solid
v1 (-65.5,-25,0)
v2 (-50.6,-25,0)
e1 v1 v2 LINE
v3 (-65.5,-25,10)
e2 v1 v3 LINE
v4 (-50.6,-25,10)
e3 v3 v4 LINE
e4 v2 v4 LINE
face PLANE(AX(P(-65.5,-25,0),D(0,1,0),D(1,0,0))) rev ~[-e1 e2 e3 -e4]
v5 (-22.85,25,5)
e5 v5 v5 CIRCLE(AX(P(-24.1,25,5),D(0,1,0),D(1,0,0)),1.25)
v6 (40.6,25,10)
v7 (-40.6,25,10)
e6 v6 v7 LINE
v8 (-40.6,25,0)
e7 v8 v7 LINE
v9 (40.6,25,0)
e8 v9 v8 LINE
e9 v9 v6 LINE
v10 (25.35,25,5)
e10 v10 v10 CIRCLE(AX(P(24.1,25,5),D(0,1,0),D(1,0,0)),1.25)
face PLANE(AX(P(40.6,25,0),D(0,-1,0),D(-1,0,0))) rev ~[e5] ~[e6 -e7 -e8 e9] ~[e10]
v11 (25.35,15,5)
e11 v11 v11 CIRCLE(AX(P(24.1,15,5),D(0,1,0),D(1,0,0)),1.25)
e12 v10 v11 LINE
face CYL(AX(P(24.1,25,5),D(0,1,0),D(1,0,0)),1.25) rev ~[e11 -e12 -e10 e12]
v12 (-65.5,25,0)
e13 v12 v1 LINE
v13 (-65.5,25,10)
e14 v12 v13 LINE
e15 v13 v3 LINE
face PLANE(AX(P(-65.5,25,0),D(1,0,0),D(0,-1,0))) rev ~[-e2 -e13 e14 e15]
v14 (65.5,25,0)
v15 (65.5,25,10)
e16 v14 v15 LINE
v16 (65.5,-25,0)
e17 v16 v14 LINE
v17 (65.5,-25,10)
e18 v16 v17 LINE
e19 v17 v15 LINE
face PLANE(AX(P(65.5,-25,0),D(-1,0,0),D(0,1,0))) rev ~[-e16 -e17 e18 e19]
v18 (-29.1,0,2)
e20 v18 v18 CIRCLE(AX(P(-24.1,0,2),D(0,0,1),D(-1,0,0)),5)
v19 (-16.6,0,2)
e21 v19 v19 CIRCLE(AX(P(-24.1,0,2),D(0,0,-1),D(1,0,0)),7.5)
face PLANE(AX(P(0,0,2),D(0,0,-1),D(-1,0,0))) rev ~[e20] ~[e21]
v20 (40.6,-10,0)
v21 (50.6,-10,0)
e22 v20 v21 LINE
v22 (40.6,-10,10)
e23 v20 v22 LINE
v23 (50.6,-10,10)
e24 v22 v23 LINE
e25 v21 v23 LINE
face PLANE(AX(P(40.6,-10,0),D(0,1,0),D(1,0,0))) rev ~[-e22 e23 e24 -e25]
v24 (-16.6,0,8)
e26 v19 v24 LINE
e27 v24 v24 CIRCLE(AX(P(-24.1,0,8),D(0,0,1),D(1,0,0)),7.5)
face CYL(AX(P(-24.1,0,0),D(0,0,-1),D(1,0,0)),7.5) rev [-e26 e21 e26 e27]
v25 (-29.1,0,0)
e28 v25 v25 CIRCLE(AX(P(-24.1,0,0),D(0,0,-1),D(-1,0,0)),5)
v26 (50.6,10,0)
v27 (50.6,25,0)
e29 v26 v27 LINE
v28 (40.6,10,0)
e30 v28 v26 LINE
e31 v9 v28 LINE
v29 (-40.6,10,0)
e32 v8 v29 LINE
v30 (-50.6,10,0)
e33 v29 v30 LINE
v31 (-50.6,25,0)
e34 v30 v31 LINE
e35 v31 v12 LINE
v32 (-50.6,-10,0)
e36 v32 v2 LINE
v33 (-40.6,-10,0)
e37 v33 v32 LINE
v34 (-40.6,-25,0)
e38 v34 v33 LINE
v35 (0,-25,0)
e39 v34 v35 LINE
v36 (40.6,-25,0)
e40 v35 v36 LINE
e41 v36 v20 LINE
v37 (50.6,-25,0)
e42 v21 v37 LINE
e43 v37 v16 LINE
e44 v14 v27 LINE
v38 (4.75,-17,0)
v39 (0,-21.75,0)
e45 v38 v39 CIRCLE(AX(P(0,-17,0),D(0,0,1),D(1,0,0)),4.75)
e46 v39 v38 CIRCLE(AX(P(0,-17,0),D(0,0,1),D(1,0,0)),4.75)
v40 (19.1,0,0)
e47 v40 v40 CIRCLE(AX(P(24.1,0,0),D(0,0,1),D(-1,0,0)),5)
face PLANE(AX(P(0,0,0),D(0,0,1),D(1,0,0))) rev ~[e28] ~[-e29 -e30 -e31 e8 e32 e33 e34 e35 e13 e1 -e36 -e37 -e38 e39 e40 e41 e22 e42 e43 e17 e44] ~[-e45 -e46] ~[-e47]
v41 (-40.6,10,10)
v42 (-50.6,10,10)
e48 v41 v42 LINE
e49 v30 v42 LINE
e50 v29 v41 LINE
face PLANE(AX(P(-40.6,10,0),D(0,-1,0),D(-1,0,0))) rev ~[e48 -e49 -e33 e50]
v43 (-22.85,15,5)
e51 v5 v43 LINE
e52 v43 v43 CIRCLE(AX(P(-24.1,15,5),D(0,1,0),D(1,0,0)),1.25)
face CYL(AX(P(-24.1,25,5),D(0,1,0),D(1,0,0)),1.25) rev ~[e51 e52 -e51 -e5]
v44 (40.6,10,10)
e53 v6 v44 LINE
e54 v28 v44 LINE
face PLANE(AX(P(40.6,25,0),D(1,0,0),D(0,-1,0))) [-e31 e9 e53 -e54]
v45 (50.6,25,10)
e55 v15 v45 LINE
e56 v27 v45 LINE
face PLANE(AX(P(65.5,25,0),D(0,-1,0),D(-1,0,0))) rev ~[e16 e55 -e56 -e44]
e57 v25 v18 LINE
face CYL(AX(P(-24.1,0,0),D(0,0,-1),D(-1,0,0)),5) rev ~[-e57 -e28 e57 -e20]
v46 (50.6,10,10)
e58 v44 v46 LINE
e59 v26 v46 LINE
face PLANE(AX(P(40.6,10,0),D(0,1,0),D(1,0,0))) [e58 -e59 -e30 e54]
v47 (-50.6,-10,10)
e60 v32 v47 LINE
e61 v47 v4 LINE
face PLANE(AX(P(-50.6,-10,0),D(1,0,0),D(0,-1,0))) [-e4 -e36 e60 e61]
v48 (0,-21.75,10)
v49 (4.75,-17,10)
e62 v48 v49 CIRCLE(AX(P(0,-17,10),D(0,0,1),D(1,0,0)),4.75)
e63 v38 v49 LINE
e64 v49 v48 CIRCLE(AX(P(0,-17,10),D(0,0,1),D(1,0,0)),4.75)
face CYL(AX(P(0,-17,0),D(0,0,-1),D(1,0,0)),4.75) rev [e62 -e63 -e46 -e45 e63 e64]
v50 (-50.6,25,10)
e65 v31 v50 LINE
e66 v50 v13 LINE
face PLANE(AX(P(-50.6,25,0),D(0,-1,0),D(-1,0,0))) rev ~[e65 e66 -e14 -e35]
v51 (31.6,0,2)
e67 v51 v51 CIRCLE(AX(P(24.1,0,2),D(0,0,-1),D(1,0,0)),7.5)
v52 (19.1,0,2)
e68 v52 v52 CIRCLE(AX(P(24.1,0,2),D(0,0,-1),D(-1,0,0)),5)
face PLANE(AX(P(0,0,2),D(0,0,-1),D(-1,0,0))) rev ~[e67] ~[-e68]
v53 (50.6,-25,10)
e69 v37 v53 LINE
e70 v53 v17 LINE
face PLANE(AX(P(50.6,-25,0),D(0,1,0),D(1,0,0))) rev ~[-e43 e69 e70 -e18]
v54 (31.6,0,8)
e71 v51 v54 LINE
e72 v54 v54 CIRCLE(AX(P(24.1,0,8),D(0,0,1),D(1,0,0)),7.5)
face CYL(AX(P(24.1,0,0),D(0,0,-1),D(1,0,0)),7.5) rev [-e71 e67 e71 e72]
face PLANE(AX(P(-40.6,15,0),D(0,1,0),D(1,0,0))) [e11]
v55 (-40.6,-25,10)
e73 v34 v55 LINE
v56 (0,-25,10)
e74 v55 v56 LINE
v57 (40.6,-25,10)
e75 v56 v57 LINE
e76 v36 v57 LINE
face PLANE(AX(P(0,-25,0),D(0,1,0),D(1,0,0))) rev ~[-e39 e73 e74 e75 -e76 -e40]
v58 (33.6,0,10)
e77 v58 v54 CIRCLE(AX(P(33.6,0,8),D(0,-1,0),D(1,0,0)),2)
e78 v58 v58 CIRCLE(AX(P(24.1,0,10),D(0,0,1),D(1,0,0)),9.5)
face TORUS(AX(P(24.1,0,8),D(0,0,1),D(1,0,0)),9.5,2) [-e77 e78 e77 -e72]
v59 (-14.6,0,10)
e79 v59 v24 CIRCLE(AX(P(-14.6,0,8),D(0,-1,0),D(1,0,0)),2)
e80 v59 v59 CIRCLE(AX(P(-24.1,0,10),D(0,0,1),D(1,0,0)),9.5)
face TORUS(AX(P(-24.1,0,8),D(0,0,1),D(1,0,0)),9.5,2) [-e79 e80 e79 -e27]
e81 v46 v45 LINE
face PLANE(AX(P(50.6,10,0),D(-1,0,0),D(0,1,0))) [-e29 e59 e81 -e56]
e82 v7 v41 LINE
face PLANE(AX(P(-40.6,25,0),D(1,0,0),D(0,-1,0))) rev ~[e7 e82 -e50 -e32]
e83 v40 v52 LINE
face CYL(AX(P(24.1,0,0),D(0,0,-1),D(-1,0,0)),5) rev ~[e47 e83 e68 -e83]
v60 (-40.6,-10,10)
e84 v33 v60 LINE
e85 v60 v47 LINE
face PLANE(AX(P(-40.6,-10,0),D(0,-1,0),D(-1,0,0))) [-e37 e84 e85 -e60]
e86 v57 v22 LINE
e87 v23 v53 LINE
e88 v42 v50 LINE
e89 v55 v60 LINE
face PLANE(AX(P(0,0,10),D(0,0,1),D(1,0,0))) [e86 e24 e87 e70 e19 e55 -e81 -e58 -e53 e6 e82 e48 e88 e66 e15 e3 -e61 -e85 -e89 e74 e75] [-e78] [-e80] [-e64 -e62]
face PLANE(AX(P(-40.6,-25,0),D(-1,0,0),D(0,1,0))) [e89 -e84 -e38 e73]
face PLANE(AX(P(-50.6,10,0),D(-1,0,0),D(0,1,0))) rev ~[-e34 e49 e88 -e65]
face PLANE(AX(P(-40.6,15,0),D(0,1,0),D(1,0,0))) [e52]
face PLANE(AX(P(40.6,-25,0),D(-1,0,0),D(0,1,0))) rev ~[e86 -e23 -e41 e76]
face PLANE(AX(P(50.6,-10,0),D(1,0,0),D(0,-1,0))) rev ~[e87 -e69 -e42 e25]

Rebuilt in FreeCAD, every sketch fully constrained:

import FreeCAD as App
import Part
import Sketcher

V = App.Vector
Q = App.Units.Quantity


def edges_at(feature, points):
    """Names of the edges that pass closest to the given points."""
    edges = feature.Shape.Edges
    near = lambda p: min(range(len(edges)), key=lambda i: edges[i].distToShape(Part.Vertex(*p))[0])
    return sorted({f"Edge{near(p) + 1}" for p in points})

doc = App.newDocument("Part")
body = doc.addObject("PartDesign::Body", "Body")

sketch1 = body.newObject("Sketcher::SketchObject", "Sketch")
sketch1.AttachmentSupport = (doc.getObject("XY_Plane"), [""])
sketch1.MapMode = "FlatFace"
sketch1.addGeometry([
    Part.LineSegment(V(65.5, -25, 0), V(65.5, 25, 0)),
    Part.LineSegment(V(65.5, 25, 0), V(50.6, 25, 0)),
    Part.LineSegment(V(50.6, 25, 0), V(50.6, 10, 0)),
    Part.LineSegment(V(50.6, 10, 0), V(40.6, 10, 0)),
    Part.LineSegment(V(40.6, 10, 0), V(40.6, 25, 0)),
    Part.LineSegment(V(40.6, 25, 0), V(-40.6, 25, 0)),
    Part.LineSegment(V(-40.6, 25, 0), V(-40.6, 10, 0)),
    Part.LineSegment(V(-40.6, 10, 0), V(-50.6, 10, 0)),
    Part.LineSegment(V(-50.6, 10, 0), V(-50.6, 25, 0)),
    Part.LineSegment(V(-50.6, 25, 0), V(-65.5, 25, 0)),
    Part.LineSegment(V(-65.5, 25, 0), V(-65.5, -25, 0)),
    Part.LineSegment(V(-65.5, -25, 0), V(-50.6, -25, 0)),
    Part.LineSegment(V(-50.6, -25, 0), V(-50.6, -10, 0)),
    Part.LineSegment(V(-50.6, -10, 0), V(-40.6, -10, 0)),
    Part.LineSegment(V(-40.6, -10, 0), V(-40.6, -25, 0)),
    Part.LineSegment(V(-40.6, -25, 0), V(0, -25, 0)),
    Part.LineSegment(V(0, -25, 0), V(40.6, -25, 0)),
    Part.LineSegment(V(40.6, -25, 0), V(40.6, -10, 0)),
    Part.LineSegment(V(40.6, -10, 0), V(50.6, -10, 0)),
    Part.LineSegment(V(50.6, -10, 0), V(50.6, -25, 0)),
    Part.LineSegment(V(50.6, -25, 0), V(65.5, -25, 0)),
    Part.Circle(V(24.1, 0, 0), V(0, 0, 1), 7.5),
    Part.Circle(V(-24.1, 0, 0), V(0, 0, 1), 7.5),
], False)
sketch1.addConstraint([
    Sketcher.Constraint("Coincident", 0, 2, 1, 1),
    Sketcher.Constraint("Coincident", 1, 2, 2, 1),
    Sketcher.Constraint("Coincident", 2, 2, 3, 1),
    Sketcher.Constraint("Coincident", 3, 2, 4, 1),
    Sketcher.Constraint("Coincident", 4, 2, 5, 1),
    Sketcher.Constraint("Coincident", 5, 2, 6, 1),
    Sketcher.Constraint("Coincident", 6, 2, 7, 1),
    Sketcher.Constraint("Coincident", 7, 2, 8, 1),
    Sketcher.Constraint("Coincident", 8, 2, 9, 1),
    Sketcher.Constraint("Coincident", 9, 2, 10, 1),
    Sketcher.Constraint("Coincident", 10, 2, 11, 1),
    Sketcher.Constraint("Coincident", 11, 2, 12, 1),
    Sketcher.Constraint("Coincident", 12, 2, 13, 1),
    Sketcher.Constraint("Coincident", 13, 2, 14, 1),
    Sketcher.Constraint("Coincident", 14, 2, 15, 1),
    Sketcher.Constraint("Coincident", 15, 2, 16, 1),
    Sketcher.Constraint("Coincident", 16, 2, 17, 1),
    Sketcher.Constraint("Coincident", 17, 2, 18, 1),
    Sketcher.Constraint("Coincident", 18, 2, 19, 1),
    Sketcher.Constraint("Coincident", 19, 2, 20, 1),
    Sketcher.Constraint("Coincident", 20, 2, 0, 1),
    Sketcher.Constraint("Vertical", 0),
    Sketcher.Constraint("Horizontal", 1),
    Sketcher.Constraint("Vertical", 2),
    Sketcher.Constraint("Horizontal", 3),
    Sketcher.Constraint("Vertical", 4),
    Sketcher.Constraint("Horizontal", 5),
    Sketcher.Constraint("Vertical", 6),
    Sketcher.Constraint("Horizontal", 7),
    Sketcher.Constraint("Vertical", 8),
    Sketcher.Constraint("Horizontal", 9),
    Sketcher.Constraint("Vertical", 10),
    Sketcher.Constraint("Horizontal", 11),
    Sketcher.Constraint("Vertical", 12),
    Sketcher.Constraint("Horizontal", 13),
    Sketcher.Constraint("Vertical", 14),
    Sketcher.Constraint("Horizontal", 15),
    Sketcher.Constraint("Horizontal", 16),
    Sketcher.Constraint("Vertical", 17),
    Sketcher.Constraint("Horizontal", 18),
    Sketcher.Constraint("Vertical", 19),
    Sketcher.Constraint("Horizontal", 20),
    Sketcher.Constraint("Equal", 21, 22),
    Sketcher.Constraint("Symmetric", 21, 3, 22, 3, -1, 1),
    Sketcher.Constraint("Symmetric", 0, 2, 10, 2, -1, 1),
    Sketcher.Constraint("Symmetric", 2, 2, 12, 2, -1, 1),
    Sketcher.Constraint("Symmetric", 4, 2, 14, 2, -1, 1),
    Sketcher.Constraint("Symmetric", 6, 2, 17, 2, -1, 1),
    Sketcher.Constraint("Symmetric", 8, 2, 19, 2, -1, 1),
    Sketcher.Constraint("Symmetric", 3, 2, 6, 2, -2),
    Sketcher.Constraint("Symmetric", 1, 2, 8, 2, -2),
    Sketcher.Constraint("PointOnObject", 21, 3, -1),
    Sketcher.Constraint("PointOnObject", 15, 2, -2),
    Sketcher.Constraint("Horizontal", 1, 2, 4, 2),
    Sketcher.Constraint("Diameter", 21, Q("15 mm")),
    Sketcher.Constraint("DistanceY", 2, 2, 2, 1, Q("15 mm")),
    Sketcher.Constraint("DistanceX", 3, 2, 3, 1, Q("10 mm")),
    Sketcher.Constraint("DistanceY", 0, 1, 0, 2, Q("50 mm")),
    Sketcher.Constraint("DistanceX", 1, 2, 1, 1, Q("14.9 mm")),
    Sketcher.Constraint("DistanceX", 5, 2, 5, 1, Q("81.2 mm")),
    Sketcher.Constraint("DistanceX", -1, 1, 21, 3, Q("24.1 mm")),
])
pad1 = body.newObject("PartDesign::Pad", "Pad")
pad1.Profile = sketch1
pad1.Length = 10

sketch2 = body.newObject("Sketcher::SketchObject", "Sketch001")
sketch2.AttachmentSupport = (doc.getObject("XZ_Plane"), [""])
sketch2.MapMode = "FlatFace"
sketch2.AttachmentOffset = App.Placement(V(0, 0, -25), App.Rotation())
sketch2.addGeometry([
    Part.Circle(V(24.1, 5, 0), V(0, 0, 1), 1.25),
    Part.Circle(V(-24.1, 5, 0), V(0, 0, 1), 1.25),
], False)
sketch2.addConstraint([
    Sketcher.Constraint("Equal", 0, 1),
    Sketcher.Constraint("Symmetric", 0, 3, 1, 3, -2),
    Sketcher.Constraint("Diameter", 0, Q("2.5 mm")),
    Sketcher.Constraint("DistanceY", -1, 1, 0, 3, Q("5 mm")),
    Sketcher.Constraint("DistanceX", -1, 1, 0, 3, Q("24.1 mm")),
])
pocket1 = body.newObject("PartDesign::Pocket", "Pocket")
pocket1.Profile = sketch2
pocket1.Length = 10
pocket1.Reversed = True

sketch3 = body.newObject("Sketcher::SketchObject", "Sketch002")
sketch3.AttachmentSupport = (doc.getObject("XY_Plane"), [""])
sketch3.MapMode = "FlatFace"
sketch3.addGeometry(Part.Circle(V(0, -17, 0), V(0, 0, 1), 4.75), False)
sketch3.addConstraint([
    Sketcher.Constraint("PointOnObject", 0, 3, -2),
    Sketcher.Constraint("Diameter", 0, Q("9.5 mm")),
    Sketcher.Constraint("DistanceY", 0, 3, -1, 1, Q("17 mm")),
])
pocket2 = body.newObject("PartDesign::Pocket", "Pocket001")
pocket2.Profile = sketch3
pocket2.Length = 10
pocket2.Reversed = True

sketch4 = body.newObject("Sketcher::SketchObject", "Sketch003")
sketch4.AttachmentSupport = (doc.getObject("XY_Plane"), [""])
sketch4.MapMode = "FlatFace"
sketch4.addGeometry([
    Part.Circle(V(-24.1, 0, 0), V(0, 0, 1), 7.5),
    Part.Circle(V(-24.1, 0, 0), V(0, 0, 1), 5),
    Part.Circle(V(24.1, 0, 0), V(0, 0, 1), 7.5),
    Part.Circle(V(24.1, 0, 0), V(0, 0, 1), 5),
], False)
sketch4.addConstraint([
    Sketcher.Constraint("Coincident", 1, 3, 0, 3),
    Sketcher.Constraint("Coincident", 3, 3, 2, 3),
    Sketcher.Constraint("Equal", 0, 2),
    Sketcher.Constraint("Equal", 1, 3),
    Sketcher.Constraint("Symmetric", 0, 3, 2, 3, -1, 1),
    Sketcher.Constraint("PointOnObject", 0, 3, -1),
    Sketcher.Constraint("Diameter", 1, Q("10 mm")),
    Sketcher.Constraint("Diameter", 0, Q("15 mm")),
    Sketcher.Constraint("DistanceX", 0, 3, 2, 3, Q("48.2 mm")),
])
pad2 = body.newObject("PartDesign::Pad", "Pad001")
pad2.Profile = sketch4
pad2.Length = 2
doc.recompute()

fillet = body.newObject("PartDesign::Fillet", "Fillet")
fillet.Base = (pad2, edges_at(pad2, [(-31.6, 0, 10), (16.6, 0, 10)]))
fillet.Radius = 2

doc.recompute()
